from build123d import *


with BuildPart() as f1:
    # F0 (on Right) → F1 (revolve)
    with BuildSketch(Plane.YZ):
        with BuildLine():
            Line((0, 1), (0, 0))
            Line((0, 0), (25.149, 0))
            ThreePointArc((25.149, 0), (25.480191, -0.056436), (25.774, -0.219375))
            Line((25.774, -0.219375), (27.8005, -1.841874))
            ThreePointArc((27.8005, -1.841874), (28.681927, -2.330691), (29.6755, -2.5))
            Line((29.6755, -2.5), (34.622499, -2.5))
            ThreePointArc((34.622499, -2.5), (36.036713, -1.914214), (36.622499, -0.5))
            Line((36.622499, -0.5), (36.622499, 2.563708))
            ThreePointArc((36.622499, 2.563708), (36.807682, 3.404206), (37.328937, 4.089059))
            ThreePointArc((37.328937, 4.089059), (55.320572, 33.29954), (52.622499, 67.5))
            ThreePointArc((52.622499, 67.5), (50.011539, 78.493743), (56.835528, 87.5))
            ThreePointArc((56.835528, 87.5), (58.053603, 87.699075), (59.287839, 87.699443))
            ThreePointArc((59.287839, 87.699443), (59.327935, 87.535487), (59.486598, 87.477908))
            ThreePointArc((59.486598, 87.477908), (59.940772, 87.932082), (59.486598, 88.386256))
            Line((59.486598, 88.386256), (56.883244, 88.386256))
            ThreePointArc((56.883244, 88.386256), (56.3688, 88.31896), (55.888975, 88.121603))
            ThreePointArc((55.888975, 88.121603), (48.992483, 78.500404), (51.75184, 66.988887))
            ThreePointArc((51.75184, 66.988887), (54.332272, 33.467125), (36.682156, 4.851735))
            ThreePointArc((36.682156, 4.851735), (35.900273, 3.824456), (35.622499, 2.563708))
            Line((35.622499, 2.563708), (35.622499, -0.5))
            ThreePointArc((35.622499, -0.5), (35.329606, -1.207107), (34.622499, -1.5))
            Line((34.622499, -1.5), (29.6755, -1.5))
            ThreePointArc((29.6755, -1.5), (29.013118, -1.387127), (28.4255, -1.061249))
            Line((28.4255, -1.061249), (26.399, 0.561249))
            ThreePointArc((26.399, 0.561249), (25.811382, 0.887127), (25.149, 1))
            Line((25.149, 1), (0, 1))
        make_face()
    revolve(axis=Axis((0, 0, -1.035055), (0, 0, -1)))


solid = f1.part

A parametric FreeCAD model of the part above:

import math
import FreeCAD as App
import Part
import Sketcher

V = App.Vector
Q = App.Units.Quantity

doc = App.newDocument("Part")
body = doc.addObject("PartDesign::Body", "Body")

# Sketch on YZ plane
sketch1 = body.newObject("Sketcher::SketchObject", "Sketch")
sketch1.AttachmentSupport = (doc.getObject("YZ_Plane"), [""])
sketch1.MapMode = "FlatFace"
sketch1.addGeometry(Part.LineSegment(V(0, 1, 0), V(0, 0, 0)), False)
sketch1.addGeometry(Part.LineSegment(V(0, 0, 0), V(25.149, 0, 0)), False)
sketch1.addGeometry(Part.ArcOfCircle(Part.Circle(V(25.149001, -0.999998, 0), V(0, 0, 1), 0.999998), math.radians(51.317786), math.radians(90.000067)), False)
sketch1.addGeometry(Part.LineSegment(V(25.774, -0.219375, 0), V(27.8005, -1.841874, 0)), False)
sketch1.addGeometry(Part.ArcOfCircle(Part.Circle(V(29.675501, 0.500001, 0), V(0, 0, 1), 3.000001), math.radians(-128.682185), math.radians(-90.000016)), False)
sketch1.addGeometry(Part.LineSegment(V(29.6755, -2.5, 0), V(34.622499, -2.5, 0)), False)
sketch1.addGeometry(Part.ArcOfCircle(Part.Circle(V(34.6225, -0.500001, 0), V(0, 0, 1), 1.999999), math.radians(-90.000043), math.radians(0.000043)), False)
sketch1.addGeometry(Part.LineSegment(V(36.622499, -0.5, 0), V(36.622499, 2.563708, 0)), False)
sketch1.addGeometry(Part.ArcOfCircle(Part.Circle(V(38.622503, 2.563706, 0), V(0, 0, 1), 2.000004), math.radians(130.299387), math.radians(179.999937)), False)
sketch1.addGeometry(Part.ArcOfCircle(Part.Circle(V(1.56182, 46.26517, 0), V(0, 0, 1), 55.300189), math.radians(-49.700653), math.radians(22.581177)), False)
sketch1.addGeometry(Part.ArcOfCircle(Part.Circle(V(62.969168, 75.7642, 0), V(0, 0, 1), 13.241999), math.radians(117.593525), math.radians(218.615428)), False)
sketch1.addGeometry(Part.ArcOfCircle(Part.Circle(V(58.672992, 80.083198, 0), V(0, 0, 1), 7.641023), math.radians(85.384613), math.radians(103.914491)), False)
sketch1.addGeometry(Part.ArcOfCircle(Part.Circle(V(59.461058, 87.654923, 0), V(0, 0, 1), 0.178848), math.radians(165.586197), math.radians(278.210082)), False)
sketch1.addGeometry(Part.ArcOfCircle(Part.Circle(V(59.486598, 87.932082, 0), V(0, 0, 1), 0.454174), math.radians(-90), math.radians(90)), False)
sketch1.addGeometry(Part.LineSegment(V(59.486598, 88.386256, 0), V(56.883244, 88.386256, 0)), False)
sketch1.addGeometry(Part.ArcOfCircle(Part.Circle(V(56.883249, 86.386237, 0), V(0, 0, 1), 2.000019), math.radians(90.000144), math.radians(119.810455)), False)
sketch1.addGeometry(Part.ArcOfCircle(Part.Circle(V(62.96917, 75.764199, 0), V(0, 0, 1), 14.242001), math.radians(119.810622), math.radians(218.036057)), False)
sketch1.addGeometry(Part.ArcOfCircle(Part.Circle(V(1.561819, 46.26517, 0), V(0, 0, 1), 54.30019), math.radians(-49.700652), math.radians(22.435982)), False)
sketch1.addGeometry(Part.ArcOfCircle(Part.Circle(V(38.622498, 2.563708, 0), V(0, 0, 1), 2.999999), math.radians(130.29933), math.radians(180.000004)), False)
sketch1.addGeometry(Part.LineSegment(V(35.622499, 2.563708, 0), V(35.622499, -0.5, 0)), False)
sketch1.addGeometry(Part.ArcOfCircle(Part.Circle(V(34.6225, -0.500001, 0), V(0, 0, 1), 0.999999), math.radians(-90.000043), math.radians(0.000043)), False)
sketch1.addGeometry(Part.LineSegment(V(34.622499, -1.5, 0), V(29.6755, -1.5, 0)), False)
sketch1.addGeometry(Part.ArcOfCircle(Part.Circle(V(29.675502, 0.500004, 0), V(0, 0, 1), 2.000004), math.radians(-128.682171), math.radians(-90.000058)), False)
sketch1.addGeometry(Part.LineSegment(V(28.4255, -1.061249, 0), V(26.399, 0.561249, 0)), False)
sketch1.addGeometry(Part.ArcOfCircle(Part.Circle(V(25.148998, -1.000004, 0), V(0, 0, 1), 2.000004), math.radians(51.317829), math.radians(89.999942)), False)
sketch1.addGeometry(Part.LineSegment(V(25.149, 1, 0), V(0, 1, 0)), False)
sketch1.addConstraint(Sketcher.Constraint("Coincident", 0, 2, 1, 1))
sketch1.addConstraint(Sketcher.Constraint("Tangent", 1, 2, 2, 2))
sketch1.addConstraint(Sketcher.Constraint("Tangent", 2, 1, 3, 1))
sketch1.addConstraint(Sketcher.Constraint("Tangent", 3, 2, 4, 1))
sketch1.addConstraint(Sketcher.Constraint("Tangent", 4, 2, 5, 1))
sketch1.addConstraint(Sketcher.Constraint("Tangent", 5, 2, 6, 1))
sketch1.addConstraint(Sketcher.Constraint("Tangent", 6, 2, 7, 1))
sketch1.addConstraint(Sketcher.Constraint("Tangent", 7, 2, 8, 2))
sketch1.addConstraint(Sketcher.Constraint("Tangent", 8, 1, 9, 1))
sketch1.addConstraint(Sketcher.Constraint("Coincident", 9, 2, 10, 2))
sketch1.addConstraint(Sketcher.Constraint("Coincident", 10, 1, 11, 2))
sketch1.addConstraint(Sketcher.Constraint("Coincident", 11, 1, 12, 1))
sketch1.addConstraint(Sketcher.Constraint("Coincident", 12, 2, 13, 1))
sketch1.addConstraint(Sketcher.Constraint("Tangent", 13, 2, 14, 1))
sketch1.addConstraint(Sketcher.Constraint("Coincident", 14, 2, 15, 1))
sketch1.addConstraint(Sketcher.Constraint("Coincident", 15, 2, 16, 1))
sketch1.addConstraint(Sketcher.Constraint("Coincident", 16, 2, 17, 2))
sketch1.addConstraint(Sketcher.Constraint("Tangent", 17, 1, 18, 1))
sketch1.addConstraint(Sketcher.Constraint("Tangent", 18, 2, 19, 1))
sketch1.addConstraint(Sketcher.Constraint("Tangent", 19, 2, 20, 2))
sketch1.addConstraint(Sketcher.Constraint("Tangent", 20, 1, 21, 1))
sketch1.addConstraint(Sketcher.Constraint("Tangent", 21, 2, 22, 2))
sketch1.addConstraint(Sketcher.Constraint("Tangent", 22, 1, 23, 1))
sketch1.addConstraint(Sketcher.Constraint("Tangent", 23, 2, 24, 1))
sketch1.addConstraint(Sketcher.Constraint("Tangent", 24, 2, 25, 1))
sketch1.addConstraint(Sketcher.Constraint("Coincident", 25, 2, 0, 1))
sketch1.addConstraint(Sketcher.Constraint("Vertical", 0))
sketch1.addConstraint(Sketcher.Constraint("Horizontal", 1))
sketch1.addConstraint(Sketcher.Constraint("Horizontal", 5))
sketch1.addConstraint(Sketcher.Constraint("Vertical", 7))
sketch1.addConstraint(Sketcher.Constraint("Horizontal", 14))
sketch1.addConstraint(Sketcher.Constraint("Vertical", 19))
sketch1.addConstraint(Sketcher.Constraint("Horizontal", 21))
sketch1.addConstraint(Sketcher.Constraint("Horizontal", 25))
sketch1.addConstraint(Sketcher.Constraint("Coincident", 0, 2, -1, 1))
sketch1.addConstraint(Sketcher.Constraint("Coincident", 16, 3, 10, 3))
sketch1.addConstraint(Sketcher.Constraint("Coincident", 17, 3, 9, 3))
sketch1.addConstraint(Sketcher.Constraint("Coincident", 18, 3, 8, 3))
sketch1.addConstraint(Sketcher.Constraint("Coincident", 20, 3, 6, 3))
sketch1.addConstraint(Sketcher.Constraint("Coincident", 22, 3, 4, 3))
sketch1.addConstraint(Sketcher.Constraint("Coincident", 24, 3, 2, 3))
sketch1.addConstraint(Sketcher.Constraint("Equal", 2, 20))
sketch1.addConstraint(Sketcher.Constraint("Equal", 8, 22))
sketch1.addConstraint(Sketcher.Constraint("Equal", 22, 24))
sketch1.addConstraint(Sketcher.Constraint("Parallel", 3, 23))
sketch1.addConstraint(Sketcher.Constraint("Vertical", 13, 3, 12, 2))
sketch1.addConstraint(Sketcher.Constraint("Radius", 4, Q("3.000001 mm")))
sketch1.addConstraint(Sketcher.Constraint("Radius", 6, Q("1.999999 mm")))
sketch1.addConstraint(Sketcher.Constraint("Radius", 10, Q("13.241999 mm")))
sketch1.addConstraint(Sketcher.Constraint("Radius", 16, Q("14.242001 mm")))
sketch1.addConstraint(Sketcher.Constraint("DistanceY", -1, 1, 4, 3, Q("0.500001 mm")))
sketch1.addConstraint(Sketcher.Constraint("DistanceY", -1, 1, 9, 2, Q("67.5 mm")))
sketch1.addConstraint(Sketcher.Constraint("DistanceY", -1, 1, 10, 1, Q("87.5 mm")))
sketch1.addConstraint(Sketcher.Constraint("DistanceX", 1, 1, 1, 2, Q("25.149 mm")))
sketch1.addConstraint(Sketcher.Constraint("DistanceX", 5, 1, 5, 2, Q("4.946999 mm")))
sketch1.addConstraint(Sketcher.Constraint("Radius", 9, Q("55.300189 mm")))
sketch1.addConstraint(Sketcher.Constraint("Radius", 12, Q("0.178848 mm")))
sketch1.addConstraint(Sketcher.Constraint("Radius", 15, Q("2.000019 mm")))
sketch1.addConstraint(Sketcher.Constraint("DistanceX", 22, 1, 21, 2, Q("1.25 mm")))
sketch1.addConstraint(Sketcher.Constraint("Radius", 11, Q("7.641023 mm")))
sketch1.addConstraint(Sketcher.Constraint("Radius", 13, Q("0.454174 mm")))
sketch1.addConstraint(Sketcher.Constraint("DistanceY", 16, 3, 11, 3, Q("4.318998 mm")))
sketch1.addConstraint(Sketcher.Constraint("DistanceY", 7, 1, 7, 2, Q("3.063708 mm")))
sketch1.addConstraint(Sketcher.Constraint("DistanceY", -1, 1, 10, 3, Q("75.7642 mm")))
sketch1.addConstraint(Sketcher.Constraint("DistanceX", -1, 1, 9, 2, Q("52.622499 mm")))
sketch1.addConstraint(Sketcher.Constraint("DistanceX", 14, 2, 14, 1, Q("2.603354 mm")))
sketch1.addConstraint(Sketcher.Constraint("DistanceY", -1, 1, 13, 3, Q("87.932082 mm")))
sketch1.addConstraint(Sketcher.Constraint("DistanceX", -1, 1, 11, 1, Q("59.287839 mm")))
sketch1.addConstraint(Sketcher.Constraint("DistanceX", 12, 3, 10, 3, Q("3.50811 mm")))
sketch1.addConstraint(Sketcher.Constraint("DistanceX", 15, 2, 14, 2, Q("0.994269 mm")))
revolution = body.newObject("PartDesign::Revolution", "Revolution")
revolution.Profile = sketch1
revolution.ReferenceAxis = (sketch1, ["V_Axis"])
revolution.Angle = 360

doc.recompute()
